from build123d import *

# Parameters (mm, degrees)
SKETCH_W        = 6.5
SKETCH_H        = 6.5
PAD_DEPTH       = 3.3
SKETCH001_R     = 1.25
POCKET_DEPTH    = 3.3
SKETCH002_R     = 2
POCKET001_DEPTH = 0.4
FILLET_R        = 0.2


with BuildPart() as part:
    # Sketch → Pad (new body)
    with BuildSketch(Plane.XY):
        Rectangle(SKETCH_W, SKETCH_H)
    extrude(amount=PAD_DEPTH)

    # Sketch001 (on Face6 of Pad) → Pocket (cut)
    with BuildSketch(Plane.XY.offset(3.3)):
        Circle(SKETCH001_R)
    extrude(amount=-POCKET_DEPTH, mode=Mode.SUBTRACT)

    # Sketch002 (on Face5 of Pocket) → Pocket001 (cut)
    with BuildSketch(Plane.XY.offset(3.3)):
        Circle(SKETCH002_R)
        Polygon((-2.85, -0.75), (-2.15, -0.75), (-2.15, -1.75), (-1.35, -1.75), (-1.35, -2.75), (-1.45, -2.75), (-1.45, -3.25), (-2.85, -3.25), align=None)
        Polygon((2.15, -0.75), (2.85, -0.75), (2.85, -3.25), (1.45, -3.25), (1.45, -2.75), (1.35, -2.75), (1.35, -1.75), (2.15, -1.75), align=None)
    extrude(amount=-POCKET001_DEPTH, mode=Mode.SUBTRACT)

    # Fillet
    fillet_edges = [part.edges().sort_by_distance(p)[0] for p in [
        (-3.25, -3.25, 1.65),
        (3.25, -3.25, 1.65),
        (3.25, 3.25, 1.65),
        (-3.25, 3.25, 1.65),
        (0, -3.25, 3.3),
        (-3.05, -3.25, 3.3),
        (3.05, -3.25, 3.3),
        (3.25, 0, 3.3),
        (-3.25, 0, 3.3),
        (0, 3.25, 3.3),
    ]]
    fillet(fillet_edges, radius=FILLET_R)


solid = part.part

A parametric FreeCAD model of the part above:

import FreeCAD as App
import Part
import Sketcher

V = App.Vector


def edges_at(feature, points):
    """Names of the edges that pass closest to the given points."""
    edges = feature.Shape.Edges
    near = lambda p: min(range(len(edges)), key=lambda i: edges[i].distToShape(Part.Vertex(*p))[0])
    return sorted({f"Edge{near(p) + 1}" for p in points})

doc = App.newDocument("Part")
body = doc.addObject("PartDesign::Body", "Body")

# Sketch on XY plane
sketch1 = body.newObject("Sketcher::SketchObject", "Sketch")
sketch1.AttachmentSupport = (doc.getObject("XY_Plane"), [""])
sketch1.MapMode = "FlatFace"
sketch1.addGeometry(Part.LineSegment(V(-3.25, 3.25, 0), V(-3.25, -3.25, 0)), False)
sketch1.addGeometry(Part.LineSegment(V(-3.25, -3.25, 0), V(3.25, -3.25, 0)), False)
sketch1.addGeometry(Part.LineSegment(V(3.25, -3.25, 0), V(3.25, 3.25, 0)), False)
sketch1.addGeometry(Part.LineSegment(V(3.25, 3.25, 0), V(-3.25, 3.25, 0)), False)
sketch1.addConstraint(Sketcher.Constraint("Coincident", 0, 2, 1, 1))
sketch1.addConstraint(Sketcher.Constraint("Coincident", 1, 2, 2, 1))
sketch1.addConstraint(Sketcher.Constraint("Coincident", 2, 2, 3, 1))
sketch1.addConstraint(Sketcher.Constraint("Coincident", 3, 2, 0, 1))
sketch1.addConstraint(Sketcher.Constraint("Vertical", 0))
sketch1.addConstraint(Sketcher.Constraint("Horizontal", 1))
sketch1.addConstraint(Sketcher.Constraint("Vertical", 2))
sketch1.addConstraint(Sketcher.Constraint("Horizontal", 3))
sketch1.addConstraint(Sketcher.Constraint("Symmetric", 0, 2, 2, 2, -1, 1))
sketch1.addConstraint(Sketcher.Constraint("Equal", 3, 0))
sketch1.addConstraint(Sketcher.Constraint("DistanceX", 1, 1, 1, 2, 6.5))
pad1 = body.newObject("PartDesign::Pad", "Pad")
pad1.Profile = sketch1
pad1.Length = 3.3

# Sketch on XY plane
sketch2 = body.newObject("Sketcher::SketchObject", "Sketch001")
sketch2.AttachmentSupport = (doc.getObject("XY_Plane"), [""])
sketch2.MapMode = "FlatFace"
sketch2.AttachmentOffset = App.Placement(V(0, 0, 3.3), App.Rotation())
sketch2.addGeometry(Part.Circle(V(0, 0, 0), V(0, 0, 1), 1.25), False)
sketch2.addConstraint(Sketcher.Constraint("Coincident", 0, 3, -1, 1))
sketch2.addConstraint(Sketcher.Constraint("Diameter", 0, 2.5))
pocket1 = body.newObject("PartDesign::Pocket", "Pocket")
pocket1.Profile = sketch2
pocket1.Length = 3.3

# Sketch on XY plane
sketch3 = body.newObject("Sketcher::SketchObject", "Sketch002")
sketch3.AttachmentSupport = (doc.getObject("XY_Plane"), [""])
sketch3.MapMode = "FlatFace"
sketch3.AttachmentOffset = App.Placement(V(0, 0, 3.3), App.Rotation())
sketch3.addGeometry(Part.Circle(V(0, 0, 0), V(0, 0, 1), 2), False)
sketch3.addGeometry(Part.LineSegment(V(-2.15, -0.75, 0), V(-2.85, -0.75, 0)), False)
sketch3.addGeometry(Part.LineSegment(V(-2.85, -0.75, 0), V(-2.85, -3.25, 0)), False)
sketch3.addGeometry(Part.LineSegment(V(-2.85, -3.25, 0), V(-1.45, -3.25, 0)), False)
sketch3.addGeometry(Part.LineSegment(V(-1.45, -3.25, 0), V(-1.45, -2.75, 0)), False)
sketch3.addGeometry(Part.LineSegment(V(-1.45, -2.75, 0), V(-1.35, -2.75, 0)), False)
sketch3.addGeometry(Part.LineSegment(V(-1.35, -2.75, 0), V(-1.35, -1.75, 0)), False)
sketch3.addGeometry(Part.LineSegment(V(-1.35, -1.75, 0), V(-2.15, -1.75, 0)), False)
sketch3.addGeometry(Part.LineSegment(V(-2.15, -1.75, 0), V(-2.15, -0.75, 0)), False)
sketch3.addGeometry(Part.LineSegment(V(2.85, -0.75, 0), V(2.15, -0.75, 0)), False)
sketch3.addGeometry(Part.LineSegment(V(2.15, -0.75, 0), V(2.15, -1.75, 0)), False)
sketch3.addGeometry(Part.LineSegment(V(2.15, -1.75, 0), V(1.35, -1.75, 0)), False)
sketch3.addGeometry(Part.LineSegment(V(1.35, -1.75, 0), V(1.35, -2.75, 0)), False)
sketch3.addGeometry(Part.LineSegment(V(1.35, -2.75, 0), V(1.45, -2.75, 0)), False)
sketch3.addGeometry(Part.LineSegment(V(1.45, -2.75, 0), V(1.45, -3.25, 0)), False)
sketch3.addGeometry(Part.LineSegment(V(1.45, -3.25, 0), V(2.85, -3.25, 0)), False)
sketch3.addGeometry(Part.LineSegment(V(2.85, -3.25, 0), V(2.85, -0.75, 0)), False)
sketch3.addConstraint(Sketcher.Constraint("Coincident", 1, 2, 2, 1))
sketch3.addConstraint(Sketcher.Constraint("Coincident", 2, 2, 3, 1))
sketch3.addConstraint(Sketcher.Constraint("Coincident", 3, 2, 4, 1))
sketch3.addConstraint(Sketcher.Constraint("Coincident", 4, 2, 5, 1))
sketch3.addConstraint(Sketcher.Constraint("Coincident", 5, 2, 6, 1))
sketch3.addConstraint(Sketcher.Constraint("Coincident", 6, 2, 7, 1))
sketch3.addConstraint(Sketcher.Constraint("Coincident", 7, 2, 8, 1))
sketch3.addConstraint(Sketcher.Constraint("Coincident", 8, 2, 1, 1))
sketch3.addConstraint(Sketcher.Constraint("Coincident", 9, 2, 10, 1))
sketch3.addConstraint(Sketcher.Constraint("Coincident", 10, 2, 11, 1))
sketch3.addConstraint(Sketcher.Constraint("Coincident", 11, 2, 12, 1))
sketch3.addConstraint(Sketcher.Constraint("Coincident", 12, 2, 13, 1))
sketch3.addConstraint(Sketcher.Constraint("Coincident", 13, 2, 14, 1))
sketch3.addConstraint(Sketcher.Constraint("Coincident", 14, 2, 15, 1))
sketch3.addConstraint(Sketcher.Constraint("Coincident", 15, 2, 16, 1))
sketch3.addConstraint(Sketcher.Constraint("Coincident", 16, 2, 9, 1))
sketch3.addConstraint(Sketcher.Constraint("Horizontal", 1))
sketch3.addConstraint(Sketcher.Constraint("Vertical", 2))
sketch3.addConstraint(Sketcher.Constraint("Horizontal", 3))
sketch3.addConstraint(Sketcher.Constraint("Vertical", 4))
sketch3.addConstraint(Sketcher.Constraint("Horizontal", 5))
sketch3.addConstraint(Sketcher.Constraint("Vertical", 6))
sketch3.addConstraint(Sketcher.Constraint("Horizontal", 7))
sketch3.addConstraint(Sketcher.Constraint("Vertical", 8))
sketch3.addConstraint(Sketcher.Constraint("Horizontal", 9))
sketch3.addConstraint(Sketcher.Constraint("Vertical", 10))
sketch3.addConstraint(Sketcher.Constraint("Horizontal", 11))
sketch3.addConstraint(Sketcher.Constraint("Vertical", 12))
sketch3.addConstraint(Sketcher.Constraint("Horizontal", 13))
sketch3.addConstraint(Sketcher.Constraint("Vertical", 14))
sketch3.addConstraint(Sketcher.Constraint("Horizontal", 15))
sketch3.addConstraint(Sketcher.Constraint("Vertical", 16))
sketch3.addConstraint(Sketcher.Constraint("Coincident", 0, 3, -1, 1))
sketch3.addConstraint(Sketcher.Constraint("Symmetric", 8, 2, 9, 2, -2))
sketch3.addConstraint(Sketcher.Constraint("Symmetric", 6, 2, 11, 2, -2))
sketch3.addConstraint(Sketcher.Constraint("Symmetric", 4, 2, 13, 2, -2))
sketch3.addConstraint(Sketcher.Constraint("Symmetric", 2, 2, 15, 2, -2))
sketch3.addConstraint(Sketcher.Constraint("Equal", 6, 8))
sketch3.addConstraint(Sketcher.Constraint("Diameter", 0, 4.0))
sketch3.addConstraint(Sketcher.Constraint("DistanceY", 6, 1, 6, 2, 1.0))
sketch3.addConstraint(Sketcher.Constraint("DistanceX", 1, 2, 1, 1, 0.7))
sketch3.addConstraint(Sketcher.Constraint("DistanceX", 3, 1, 3, 2, 1.4))
sketch3.addConstraint(Sketcher.Constraint("DistanceX", 5, 1, 5, 2, 0.1))
sketch3.addConstraint(Sketcher.Constraint("DistanceY", 2, 2, 2, 1, 2.5))
sketch3.addConstraint(Sketcher.Constraint("DistanceX", 6, 2, 9, 2, 3.5))
sketch3.addConstraint(Sketcher.Constraint("DistanceY", 1, 2, -1, 1, 0.75))
pocket2 = body.newObject("PartDesign::Pocket", "Pocket001")
pocket2.Profile = sketch3
pocket2.Length = 0.4
doc.recompute()

fillet = body.newObject("PartDesign::Fillet", "Fillet")
fillet.Base = (pocket2, edges_at(pocket2, [
    (-3.25, -3.25, 1.65),
    (3.25, -3.25, 1.65),
    (3.25, 3.25, 1.65),
    (-3.25, 3.25, 1.65),
    (0, -3.25, 3.3),
    (-3.05, -3.25, 3.3),
    (3.05, -3.25, 3.3),
    (3.25, 0, 3.3),
    (-3.25, 0, 3.3),
    (0, 3.25, 3.3),
]))
fillet.Radius = 0.2

doc.recompute()
